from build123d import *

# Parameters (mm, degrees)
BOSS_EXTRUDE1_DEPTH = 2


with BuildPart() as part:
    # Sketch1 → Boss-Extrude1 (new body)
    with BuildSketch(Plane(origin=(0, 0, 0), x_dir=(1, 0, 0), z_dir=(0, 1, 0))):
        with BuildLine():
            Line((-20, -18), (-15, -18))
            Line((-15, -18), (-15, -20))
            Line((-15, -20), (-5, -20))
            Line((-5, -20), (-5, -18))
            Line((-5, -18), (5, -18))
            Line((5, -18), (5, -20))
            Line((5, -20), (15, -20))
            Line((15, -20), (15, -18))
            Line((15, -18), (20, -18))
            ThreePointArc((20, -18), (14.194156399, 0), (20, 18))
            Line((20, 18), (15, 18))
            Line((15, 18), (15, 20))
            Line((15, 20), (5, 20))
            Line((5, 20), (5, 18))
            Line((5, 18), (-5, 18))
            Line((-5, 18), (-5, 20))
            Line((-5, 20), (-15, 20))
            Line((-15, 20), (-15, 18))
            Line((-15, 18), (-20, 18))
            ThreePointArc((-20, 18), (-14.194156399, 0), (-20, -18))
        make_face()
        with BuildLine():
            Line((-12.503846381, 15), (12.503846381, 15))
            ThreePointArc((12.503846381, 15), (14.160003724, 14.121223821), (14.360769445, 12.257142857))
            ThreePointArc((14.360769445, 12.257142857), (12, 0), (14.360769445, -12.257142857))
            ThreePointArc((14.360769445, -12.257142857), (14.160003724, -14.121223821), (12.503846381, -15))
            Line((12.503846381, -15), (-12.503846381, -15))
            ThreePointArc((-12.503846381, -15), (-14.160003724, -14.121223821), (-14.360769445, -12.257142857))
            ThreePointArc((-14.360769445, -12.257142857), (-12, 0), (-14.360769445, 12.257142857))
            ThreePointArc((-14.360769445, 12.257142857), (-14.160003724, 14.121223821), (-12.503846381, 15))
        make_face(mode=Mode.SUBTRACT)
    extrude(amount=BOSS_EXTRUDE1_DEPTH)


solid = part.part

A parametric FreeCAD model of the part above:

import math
import FreeCAD as App
import Part
import Sketcher
from FreeCAD import Vector
Q = App.Units.Quantity

doc = App.newDocument("Part")
body = doc.addObject("PartDesign::Body", "Body")

# Sketch on XZ plane
sketch1 = body.newObject("Sketcher::SketchObject", "Sketch")
sketch1.AttachmentSupport = (doc.getObject("XZ_Plane"), [""])
sketch1.MapMode = "FlatFace"
sketch1.addGeometry(Part.LineSegment(Vector(-20, 18, 0), Vector(-15, 18, 0)), False)
sketch1.addGeometry(Part.LineSegment(Vector(-15, 18, 0), Vector(-15, 20, 0)), False)
sketch1.addGeometry(Part.LineSegment(Vector(-15, 20, 0), Vector(-5, 20, 0)), False)
sketch1.addGeometry(Part.LineSegment(Vector(-5, 20, 0), Vector(-5, 18, 0)), False)
sketch1.addGeometry(Part.LineSegment(Vector(-5, 18, 0), Vector(5, 18, 0)), False)
sketch1.addGeometry(Part.LineSegment(Vector(5, 18, 0), Vector(5, 20, 0)), False)
sketch1.addGeometry(Part.LineSegment(Vector(5, 20, 0), Vector(15, 20, 0)), False)
sketch1.addGeometry(Part.LineSegment(Vector(15, 20, 0), Vector(15, 18, 0)), False)
sketch1.addGeometry(Part.LineSegment(Vector(15, 18, 0), Vector(20, 18, 0)), False)
sketch1.addGeometry(Part.ArcOfCircle(Part.Circle(Vector(45, 0, 0), Vector(0, 0, 1), 30.805844), math.radians(144.246113), math.radians(215.753887)), False)
sketch1.addGeometry(Part.LineSegment(Vector(20, -18, 0), Vector(15, -18, 0)), False)
sketch1.addGeometry(Part.LineSegment(Vector(15, -18, 0), Vector(15, -20, 0)), False)
sketch1.addGeometry(Part.LineSegment(Vector(15, -20, 0), Vector(5, -20, 0)), False)
sketch1.addGeometry(Part.LineSegment(Vector(5, -20, 0), Vector(5, -18, 0)), False)
sketch1.addGeometry(Part.LineSegment(Vector(5, -18, 0), Vector(-5, -18, 0)), False)
sketch1.addGeometry(Part.LineSegment(Vector(-5, -18, 0), Vector(-5, -20, 0)), False)
sketch1.addGeometry(Part.LineSegment(Vector(-5, -20, 0), Vector(-15, -20, 0)), False)
sketch1.addGeometry(Part.LineSegment(Vector(-15, -20, 0), Vector(-15, -18, 0)), False)
sketch1.addGeometry(Part.LineSegment(Vector(-15, -18, 0), Vector(-20, -18, 0)), False)
sketch1.addGeometry(Part.ArcOfCircle(Part.Circle(Vector(-45, 0, 0), Vector(0, 0, 1), 30.805844), math.radians(-35.753887), math.radians(35.753887)), False)
sketch1.addGeometry(Part.ArcOfCircle(Part.Circle(Vector(-12.503846, -13, 0), Vector(0, 0, 1), 2), math.radians(158.196252), math.radians(270)), False)
sketch1.addGeometry(Part.LineSegment(Vector(-12.503846, -15, 0), Vector(12.503846, -15, 0)), False)
sketch1.addGeometry(Part.ArcOfCircle(Part.Circle(Vector(12.503846, -13, 0), Vector(0, 0, 1), 2), math.radians(-90), math.radians(21.803748)), False)
sketch1.addGeometry(Part.ArcOfCircle(Part.Circle(Vector(45, 0, 0), Vector(0, 0, 1), 33), math.radians(158.196252), math.radians(201.803748)), False)
sketch1.addGeometry(Part.ArcOfCircle(Part.Circle(Vector(12.503846, 13, 0), Vector(0, 0, 1), 2), math.radians(-21.803748), math.radians(90)), False)
sketch1.addGeometry(Part.LineSegment(Vector(12.503846, 15, 0), Vector(-12.503846, 15, 0)), False)
sketch1.addGeometry(Part.ArcOfCircle(Part.Circle(Vector(-12.503846, 13, 0), Vector(0, 0, 1), 2), math.radians(90), math.radians(201.803748)), False)
sketch1.addGeometry(Part.ArcOfCircle(Part.Circle(Vector(-45, 0, 0), Vector(0, 0, 1), 33), math.radians(-21.803748), math.radians(21.803748)), False)
sketch1.addConstraint(Sketcher.Constraint("Coincident", 0, 2, 1, 1))
sketch1.addConstraint(Sketcher.Constraint("Coincident", 1, 2, 2, 1))
sketch1.addConstraint(Sketcher.Constraint("Coincident", 2, 2, 3, 1))
sketch1.addConstraint(Sketcher.Constraint("Coincident", 3, 2, 4, 1))
sketch1.addConstraint(Sketcher.Constraint("Coincident", 4, 2, 5, 1))
sketch1.addConstraint(Sketcher.Constraint("Coincident", 5, 2, 6, 1))
sketch1.addConstraint(Sketcher.Constraint("Coincident", 6, 2, 7, 1))
sketch1.addConstraint(Sketcher.Constraint("Coincident", 7, 2, 8, 1))
sketch1.addConstraint(Sketcher.Constraint("Coincident", 8, 2, 9, 1))
sketch1.addConstraint(Sketcher.Constraint("Coincident", 9, 2, 10, 1))
sketch1.addConstraint(Sketcher.Constraint("Coincident", 10, 2, 11, 1))
sketch1.addConstraint(Sketcher.Constraint("Coincident", 11, 2, 12, 1))
sketch1.addConstraint(Sketcher.Constraint("Coincident", 12, 2, 13, 1))
sketch1.addConstraint(Sketcher.Constraint("Coincident", 13, 2, 14, 1))
sketch1.addConstraint(Sketcher.Constraint("Coincident", 14, 2, 15, 1))
sketch1.addConstraint(Sketcher.Constraint("Coincident", 15, 2, 16, 1))
sketch1.addConstraint(Sketcher.Constraint("Coincident", 16, 2, 17, 1))
sketch1.addConstraint(Sketcher.Constraint("Coincident", 17, 2, 18, 1))
sketch1.addConstraint(Sketcher.Constraint("Coincident", 18, 2, 19, 1))
sketch1.addConstraint(Sketcher.Constraint("Coincident", 19, 2, 0, 1))
sketch1.addConstraint(Sketcher.Constraint("Tangent", 20, 2, 21, 1))
sketch1.addConstraint(Sketcher.Constraint("Tangent", 21, 2, 22, 1))
sketch1.addConstraint(Sketcher.Constraint("Tangent", 22, 2, 23, 2))
sketch1.addConstraint(Sketcher.Constraint("Tangent", 23, 1, 24, 1))
sketch1.addConstraint(Sketcher.Constraint("Tangent", 24, 2, 25, 1))
sketch1.addConstraint(Sketcher.Constraint("Tangent", 25, 2, 26, 1))
sketch1.addConstraint(Sketcher.Constraint("Tangent", 26, 2, 27, 2))
sketch1.addConstraint(Sketcher.Constraint("Tangent", 27, 1, 20, 1))
sketch1.addConstraint(Sketcher.Constraint("Horizontal", 0))
sketch1.addConstraint(Sketcher.Constraint("Vertical", 1))
sketch1.addConstraint(Sketcher.Constraint("Horizontal", 2))
sketch1.addConstraint(Sketcher.Constraint("Vertical", 3))
sketch1.addConstraint(Sketcher.Constraint("Horizontal", 4))
sketch1.addConstraint(Sketcher.Constraint("Vertical", 5))
sketch1.addConstraint(Sketcher.Constraint("Horizontal", 6))
sketch1.addConstraint(Sketcher.Constraint("Vertical", 7))
sketch1.addConstraint(Sketcher.Constraint("Horizontal", 8))
sketch1.addConstraint(Sketcher.Constraint("Horizontal", 10))
sketch1.addConstraint(Sketcher.Constraint("Vertical", 11))
sketch1.addConstraint(Sketcher.Constraint("Horizontal", 12))
sketch1.addConstraint(Sketcher.Constraint("Vertical", 13))
sketch1.addConstraint(Sketcher.Constraint("Horizontal", 14))
sketch1.addConstraint(Sketcher.Constraint("Vertical", 15))
sketch1.addConstraint(Sketcher.Constraint("Horizontal", 16))
sketch1.addConstraint(Sketcher.Constraint("Vertical", 17))
sketch1.addConstraint(Sketcher.Constraint("Horizontal", 18))
sketch1.addConstraint(Sketcher.Constraint("Horizontal", 21))
sketch1.addConstraint(Sketcher.Constraint("Horizontal", 25))
sketch1.addConstraint(Sketcher.Constraint("Coincident", 23, 3, 9, 3))
sketch1.addConstraint(Sketcher.Constraint("Coincident", 27, 3, 19, 3))
sketch1.addConstraint(Sketcher.Constraint("Equal", 9, 19))
sketch1.addConstraint(Sketcher.Constraint("Equal", 20, 22))
sketch1.addConstraint(Sketcher.Constraint("Equal", 22, 24))
sketch1.addConstraint(Sketcher.Constraint("Equal", 24, 26))
sketch1.addConstraint(Sketcher.Constraint("Equal", 23, 27))
sketch1.addConstraint(Sketcher.Constraint("Symmetric", 9, 3, 19, 3, -1, 1))
sketch1.addConstraint(Sketcher.Constraint("Symmetric", 0, 2, 10, 2, -1, 1))
sketch1.addConstraint(Sketcher.Constraint("Symmetric", 2, 2, 12, 2, -1, 1))
sketch1.addConstraint(Sketcher.Constraint("Symmetric", 4, 2, 14, 2, -1, 1))
sketch1.addConstraint(Sketcher.Constraint("Symmetric", 6, 2, 16, 2, -1, 1))
sketch1.addConstraint(Sketcher.Constraint("Symmetric", 2, 2, 5, 2, -2))
sketch1.addConstraint(Sketcher.Constraint("Symmetric", 0, 2, 7, 2, -2))
sketch1.addConstraint(Sketcher.Constraint("Symmetric", 9, 2, 18, 2, -2))
sketch1.addConstraint(Sketcher.Constraint("Horizontal", 0, 2, 3, 2))
sketch1.addConstraint(Sketcher.Constraint("Vertical", 22, 3, 24, 3))
sketch1.addConstraint(Sketcher.Constraint("Equal", 2, 4))
sketch1.addConstraint(Sketcher.Constraint("Radius", 20, Q("2 mm")))
sketch1.addConstraint(Sketcher.Constraint("Radius", 23, Q("33 mm")))
sketch1.addConstraint(Sketcher.Constraint("DistanceX", 0, 1, 0, 2, Q("5 mm")))
sketch1.addConstraint(Sketcher.Constraint("DistanceX", 2, 1, 2, 2, Q("10 mm")))
sketch1.addConstraint(Sketcher.Constraint("DistanceY", 1, 1, 1, 2, Q("2 mm")))
sketch1.addConstraint(Sketcher.Constraint("DistanceX", -1, 1, 9, 3, Q("45 mm")))
sketch1.addConstraint(Sketcher.Constraint("DistanceY", 20, 3, -1, 1, Q("13 mm")))
sketch1.addConstraint(Sketcher.Constraint("DistanceY", -1, 1, 0, 2, Q("18 mm")))
pad1 = body.newObject("PartDesign::Pad", "Pad")
pad1.Profile = sketch1
pad1.Length = 2
pad1.Reversed = True

doc.recompute()
